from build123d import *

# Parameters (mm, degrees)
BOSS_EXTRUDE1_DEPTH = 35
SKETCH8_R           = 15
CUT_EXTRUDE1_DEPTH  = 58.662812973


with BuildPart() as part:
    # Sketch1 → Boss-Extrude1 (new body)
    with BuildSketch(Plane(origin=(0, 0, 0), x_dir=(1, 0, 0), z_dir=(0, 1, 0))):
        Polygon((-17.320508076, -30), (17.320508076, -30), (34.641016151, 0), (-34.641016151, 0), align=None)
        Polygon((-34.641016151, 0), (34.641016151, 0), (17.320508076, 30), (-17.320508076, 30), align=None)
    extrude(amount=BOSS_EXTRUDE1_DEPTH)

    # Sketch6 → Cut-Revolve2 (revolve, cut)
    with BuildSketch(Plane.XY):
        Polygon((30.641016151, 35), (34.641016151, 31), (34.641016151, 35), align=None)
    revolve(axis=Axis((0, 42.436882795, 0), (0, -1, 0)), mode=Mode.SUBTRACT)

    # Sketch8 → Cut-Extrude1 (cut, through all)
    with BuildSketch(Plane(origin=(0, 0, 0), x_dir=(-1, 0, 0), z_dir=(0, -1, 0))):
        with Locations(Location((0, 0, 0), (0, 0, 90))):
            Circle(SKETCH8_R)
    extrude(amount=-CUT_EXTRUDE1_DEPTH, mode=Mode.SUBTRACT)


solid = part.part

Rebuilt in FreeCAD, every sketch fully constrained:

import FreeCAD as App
import Part
import Sketcher
from FreeCAD import Vector
Q = App.Units.Quantity


def add_polygon(sketch, points):
    """Adds a closed chain of lines whose ends are joined by coincident constraints."""
    first, n = sketch.GeometryCount, len(points)
    for a, b in zip(points, points[1:] + points[:1]):
        sketch.addGeometry(Part.LineSegment(App.Vector(*a, 0), App.Vector(*b, 0)), False)
    for i in range(n):
        sketch.addConstraint(Sketcher.Constraint("Coincident", first + i, 2, first + (i + 1) % n, 1))

doc = App.newDocument("Part")
body = doc.addObject("PartDesign::Body", "Body")

sketch1 = body.newObject("Sketcher::SketchObject", "Sketch")
sketch1.AttachmentSupport = (doc.getObject("XZ_Plane"), [""])
sketch1.MapMode = "FlatFace"
add_polygon(sketch1, [(-17.320508, 30), (17.320508, 30), (34.641016, 0), (17.320508, -30), (-17.320508, -30), (-34.641016, 0)])
sketch1.addConstraint([
    Sketcher.Constraint("Horizontal", 0),
    Sketcher.Constraint("Horizontal", 3),
    Sketcher.Constraint("Symmetric", 0, 2, 3, 2, -1, 1),
    Sketcher.Constraint("Symmetric", 1, 2, 4, 2, -1, 1),
    Sketcher.Constraint("PointOnObject", 1, 2, -1),
    Sketcher.Constraint("Parallel", 2, 5),
    Sketcher.Constraint("Vertical", 0, 2, 2, 2),
    Sketcher.Constraint("Angle", 1, Q("-60 deg")),
    Sketcher.Constraint("DistanceY", -1, 1, 0, 2, 30.0),
    Sketcher.Constraint("DistanceX", 0, 1, 0, 2, 34.641016),
])
pad1 = body.newObject("PartDesign::Pad", "Pad")
pad1.Profile = sketch1
pad1.Length = 35
pad1.Reversed = True

sketch2 = body.newObject("Sketcher::SketchObject", "Sketch001")
sketch2.AttachmentSupport = (doc.getObject("XY_Plane"), [""])
sketch2.MapMode = "FlatFace"
add_polygon(sketch2, [(30.641016, 35), (34.641016, 31), (34.641016, 35)])
sketch2.addConstraint([
    Sketcher.Constraint("Vertical", 1),
    Sketcher.Constraint("Horizontal", 2),
    Sketcher.Constraint("Equal", 2, 1),
    Sketcher.Constraint("DistanceX", 2, 2, 2, 1, 4.0),
    Sketcher.Constraint("DistanceY", -1, 1, 0, 2, 31.0),
    Sketcher.Constraint("DistanceX", -1, 1, 0, 2, 34.641016),
])
groove = body.newObject("PartDesign::Groove", "Groove")
groove.Profile = sketch2
groove.ReferenceAxis = (sketch2, ["V_Axis"])
groove.Angle = 360

sketch3 = body.newObject("Sketcher::SketchObject", "Sketch002")
sketch3.AttachmentSupport = (doc.getObject("XZ_Plane"), [""])
sketch3.MapMode = "FlatFace"
sketch3.addGeometry(Part.Circle(Vector(0, 0, 0), Vector(0, 0, 1), 15), False)
sketch3.addConstraint([
    Sketcher.Constraint("Coincident", 0, 3, -1, 1),
    Sketcher.Constraint("Diameter", 0, 30.0),
])
pocket1 = body.newObject("PartDesign::Pocket", "Pocket")
pocket1.Profile = sketch3
pocket1.Type = "ThroughAll"

doc.recompute()
